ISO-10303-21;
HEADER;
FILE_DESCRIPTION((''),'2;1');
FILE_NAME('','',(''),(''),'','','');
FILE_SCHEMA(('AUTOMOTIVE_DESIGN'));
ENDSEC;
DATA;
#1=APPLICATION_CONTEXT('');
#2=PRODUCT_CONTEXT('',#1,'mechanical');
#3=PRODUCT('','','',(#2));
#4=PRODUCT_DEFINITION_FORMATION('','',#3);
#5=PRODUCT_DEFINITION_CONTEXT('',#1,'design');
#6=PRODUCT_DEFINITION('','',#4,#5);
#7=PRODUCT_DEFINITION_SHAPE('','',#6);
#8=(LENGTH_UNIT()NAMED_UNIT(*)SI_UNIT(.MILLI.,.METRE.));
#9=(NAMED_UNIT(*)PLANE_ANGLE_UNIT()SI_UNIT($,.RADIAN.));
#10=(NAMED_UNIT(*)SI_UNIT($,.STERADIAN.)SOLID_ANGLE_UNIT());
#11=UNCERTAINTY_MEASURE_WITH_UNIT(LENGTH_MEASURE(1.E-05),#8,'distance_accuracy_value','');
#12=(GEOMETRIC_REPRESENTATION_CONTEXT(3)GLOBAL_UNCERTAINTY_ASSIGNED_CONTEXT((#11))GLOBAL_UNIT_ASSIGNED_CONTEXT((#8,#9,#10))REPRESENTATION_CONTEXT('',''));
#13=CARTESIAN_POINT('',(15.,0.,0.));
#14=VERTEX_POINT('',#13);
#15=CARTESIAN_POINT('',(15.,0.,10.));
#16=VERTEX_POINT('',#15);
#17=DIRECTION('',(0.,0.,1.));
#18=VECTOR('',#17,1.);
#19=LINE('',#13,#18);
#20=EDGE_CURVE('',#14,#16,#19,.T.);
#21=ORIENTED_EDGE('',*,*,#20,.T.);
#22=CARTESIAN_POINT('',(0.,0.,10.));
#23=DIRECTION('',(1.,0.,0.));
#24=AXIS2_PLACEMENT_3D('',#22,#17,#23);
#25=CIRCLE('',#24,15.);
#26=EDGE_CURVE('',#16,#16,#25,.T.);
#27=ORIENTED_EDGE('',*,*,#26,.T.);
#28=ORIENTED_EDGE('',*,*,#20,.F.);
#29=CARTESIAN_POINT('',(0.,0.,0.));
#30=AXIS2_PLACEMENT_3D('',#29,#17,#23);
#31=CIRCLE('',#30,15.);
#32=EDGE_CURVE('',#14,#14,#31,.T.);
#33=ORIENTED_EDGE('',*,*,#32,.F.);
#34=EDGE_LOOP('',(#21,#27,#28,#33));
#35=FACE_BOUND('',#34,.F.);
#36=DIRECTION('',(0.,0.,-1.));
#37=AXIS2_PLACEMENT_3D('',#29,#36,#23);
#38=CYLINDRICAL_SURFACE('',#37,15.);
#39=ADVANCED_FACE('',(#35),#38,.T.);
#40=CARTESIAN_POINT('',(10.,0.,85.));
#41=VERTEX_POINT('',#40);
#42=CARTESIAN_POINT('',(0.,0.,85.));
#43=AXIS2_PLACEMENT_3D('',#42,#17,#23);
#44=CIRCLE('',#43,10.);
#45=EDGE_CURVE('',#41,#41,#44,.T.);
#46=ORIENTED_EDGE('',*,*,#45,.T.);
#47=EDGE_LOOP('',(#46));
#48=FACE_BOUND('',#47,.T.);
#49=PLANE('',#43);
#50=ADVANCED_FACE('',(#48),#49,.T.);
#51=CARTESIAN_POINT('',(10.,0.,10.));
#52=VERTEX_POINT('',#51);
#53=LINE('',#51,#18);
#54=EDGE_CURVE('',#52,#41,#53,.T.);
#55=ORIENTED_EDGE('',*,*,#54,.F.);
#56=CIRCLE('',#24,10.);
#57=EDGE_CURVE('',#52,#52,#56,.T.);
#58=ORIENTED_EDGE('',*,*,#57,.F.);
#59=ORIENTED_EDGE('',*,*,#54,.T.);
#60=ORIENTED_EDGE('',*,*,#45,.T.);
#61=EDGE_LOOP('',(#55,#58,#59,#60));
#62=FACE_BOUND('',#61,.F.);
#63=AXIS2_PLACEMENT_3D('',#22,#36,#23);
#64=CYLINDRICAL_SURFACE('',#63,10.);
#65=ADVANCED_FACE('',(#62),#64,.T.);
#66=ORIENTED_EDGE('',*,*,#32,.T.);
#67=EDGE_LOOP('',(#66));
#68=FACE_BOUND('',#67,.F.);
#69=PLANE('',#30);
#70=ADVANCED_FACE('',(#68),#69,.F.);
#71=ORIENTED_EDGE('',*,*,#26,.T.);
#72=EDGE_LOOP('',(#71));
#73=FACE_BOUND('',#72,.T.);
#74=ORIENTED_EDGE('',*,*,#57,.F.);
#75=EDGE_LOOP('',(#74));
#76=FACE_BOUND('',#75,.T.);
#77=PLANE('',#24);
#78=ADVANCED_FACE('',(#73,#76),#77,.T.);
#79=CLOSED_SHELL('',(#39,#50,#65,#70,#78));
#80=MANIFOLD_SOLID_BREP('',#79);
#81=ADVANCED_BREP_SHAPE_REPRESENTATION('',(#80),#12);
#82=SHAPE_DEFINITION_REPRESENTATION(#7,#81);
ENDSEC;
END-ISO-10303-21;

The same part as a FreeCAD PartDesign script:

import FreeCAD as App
import Part
import Sketcher
from FreeCAD import Vector

doc = App.newDocument("Part")
body = doc.addObject("PartDesign::Body", "Body")

# Sketch on XY plane
sketch1 = body.newObject("Sketcher::SketchObject", "Sketch")
sketch1.AttachmentSupport = (doc.getObject("XY_Plane"), [""])
sketch1.MapMode = "FlatFace"
sketch1.addGeometry(Part.Circle(Vector(0, 0, 0), Vector(0, 0, 1), 15), False)
sketch1.addConstraint(Sketcher.Constraint("Coincident", 0, 3, -1, 1))
sketch1.addConstraint(Sketcher.Constraint("Diameter", 0, 30.0))
pad1 = body.newObject("PartDesign::Pad", "Pad")
pad1.Profile = sketch1
pad1.Length = 10

# Sketch on XY plane
sketch2 = body.newObject("Sketcher::SketchObject", "Sketch001")
sketch2.AttachmentSupport = (doc.getObject("XY_Plane"), [""])
sketch2.MapMode = "FlatFace"
sketch2.AttachmentOffset = App.Placement(Vector(0, 0, 10), App.Rotation())
sketch2.addGeometry(Part.Circle(Vector(0, 0, 0), Vector(0, 0, 1), 10), False)
sketch2.addConstraint(Sketcher.Constraint("Coincident", 0, 3, -1, 1))
sketch2.addConstraint(Sketcher.Constraint("Diameter", 0, 20.0))
pad2 = body.newObject("PartDesign::Pad", "Pad001")
pad2.Profile = sketch2
pad2.Length = 75

doc.recompute()
